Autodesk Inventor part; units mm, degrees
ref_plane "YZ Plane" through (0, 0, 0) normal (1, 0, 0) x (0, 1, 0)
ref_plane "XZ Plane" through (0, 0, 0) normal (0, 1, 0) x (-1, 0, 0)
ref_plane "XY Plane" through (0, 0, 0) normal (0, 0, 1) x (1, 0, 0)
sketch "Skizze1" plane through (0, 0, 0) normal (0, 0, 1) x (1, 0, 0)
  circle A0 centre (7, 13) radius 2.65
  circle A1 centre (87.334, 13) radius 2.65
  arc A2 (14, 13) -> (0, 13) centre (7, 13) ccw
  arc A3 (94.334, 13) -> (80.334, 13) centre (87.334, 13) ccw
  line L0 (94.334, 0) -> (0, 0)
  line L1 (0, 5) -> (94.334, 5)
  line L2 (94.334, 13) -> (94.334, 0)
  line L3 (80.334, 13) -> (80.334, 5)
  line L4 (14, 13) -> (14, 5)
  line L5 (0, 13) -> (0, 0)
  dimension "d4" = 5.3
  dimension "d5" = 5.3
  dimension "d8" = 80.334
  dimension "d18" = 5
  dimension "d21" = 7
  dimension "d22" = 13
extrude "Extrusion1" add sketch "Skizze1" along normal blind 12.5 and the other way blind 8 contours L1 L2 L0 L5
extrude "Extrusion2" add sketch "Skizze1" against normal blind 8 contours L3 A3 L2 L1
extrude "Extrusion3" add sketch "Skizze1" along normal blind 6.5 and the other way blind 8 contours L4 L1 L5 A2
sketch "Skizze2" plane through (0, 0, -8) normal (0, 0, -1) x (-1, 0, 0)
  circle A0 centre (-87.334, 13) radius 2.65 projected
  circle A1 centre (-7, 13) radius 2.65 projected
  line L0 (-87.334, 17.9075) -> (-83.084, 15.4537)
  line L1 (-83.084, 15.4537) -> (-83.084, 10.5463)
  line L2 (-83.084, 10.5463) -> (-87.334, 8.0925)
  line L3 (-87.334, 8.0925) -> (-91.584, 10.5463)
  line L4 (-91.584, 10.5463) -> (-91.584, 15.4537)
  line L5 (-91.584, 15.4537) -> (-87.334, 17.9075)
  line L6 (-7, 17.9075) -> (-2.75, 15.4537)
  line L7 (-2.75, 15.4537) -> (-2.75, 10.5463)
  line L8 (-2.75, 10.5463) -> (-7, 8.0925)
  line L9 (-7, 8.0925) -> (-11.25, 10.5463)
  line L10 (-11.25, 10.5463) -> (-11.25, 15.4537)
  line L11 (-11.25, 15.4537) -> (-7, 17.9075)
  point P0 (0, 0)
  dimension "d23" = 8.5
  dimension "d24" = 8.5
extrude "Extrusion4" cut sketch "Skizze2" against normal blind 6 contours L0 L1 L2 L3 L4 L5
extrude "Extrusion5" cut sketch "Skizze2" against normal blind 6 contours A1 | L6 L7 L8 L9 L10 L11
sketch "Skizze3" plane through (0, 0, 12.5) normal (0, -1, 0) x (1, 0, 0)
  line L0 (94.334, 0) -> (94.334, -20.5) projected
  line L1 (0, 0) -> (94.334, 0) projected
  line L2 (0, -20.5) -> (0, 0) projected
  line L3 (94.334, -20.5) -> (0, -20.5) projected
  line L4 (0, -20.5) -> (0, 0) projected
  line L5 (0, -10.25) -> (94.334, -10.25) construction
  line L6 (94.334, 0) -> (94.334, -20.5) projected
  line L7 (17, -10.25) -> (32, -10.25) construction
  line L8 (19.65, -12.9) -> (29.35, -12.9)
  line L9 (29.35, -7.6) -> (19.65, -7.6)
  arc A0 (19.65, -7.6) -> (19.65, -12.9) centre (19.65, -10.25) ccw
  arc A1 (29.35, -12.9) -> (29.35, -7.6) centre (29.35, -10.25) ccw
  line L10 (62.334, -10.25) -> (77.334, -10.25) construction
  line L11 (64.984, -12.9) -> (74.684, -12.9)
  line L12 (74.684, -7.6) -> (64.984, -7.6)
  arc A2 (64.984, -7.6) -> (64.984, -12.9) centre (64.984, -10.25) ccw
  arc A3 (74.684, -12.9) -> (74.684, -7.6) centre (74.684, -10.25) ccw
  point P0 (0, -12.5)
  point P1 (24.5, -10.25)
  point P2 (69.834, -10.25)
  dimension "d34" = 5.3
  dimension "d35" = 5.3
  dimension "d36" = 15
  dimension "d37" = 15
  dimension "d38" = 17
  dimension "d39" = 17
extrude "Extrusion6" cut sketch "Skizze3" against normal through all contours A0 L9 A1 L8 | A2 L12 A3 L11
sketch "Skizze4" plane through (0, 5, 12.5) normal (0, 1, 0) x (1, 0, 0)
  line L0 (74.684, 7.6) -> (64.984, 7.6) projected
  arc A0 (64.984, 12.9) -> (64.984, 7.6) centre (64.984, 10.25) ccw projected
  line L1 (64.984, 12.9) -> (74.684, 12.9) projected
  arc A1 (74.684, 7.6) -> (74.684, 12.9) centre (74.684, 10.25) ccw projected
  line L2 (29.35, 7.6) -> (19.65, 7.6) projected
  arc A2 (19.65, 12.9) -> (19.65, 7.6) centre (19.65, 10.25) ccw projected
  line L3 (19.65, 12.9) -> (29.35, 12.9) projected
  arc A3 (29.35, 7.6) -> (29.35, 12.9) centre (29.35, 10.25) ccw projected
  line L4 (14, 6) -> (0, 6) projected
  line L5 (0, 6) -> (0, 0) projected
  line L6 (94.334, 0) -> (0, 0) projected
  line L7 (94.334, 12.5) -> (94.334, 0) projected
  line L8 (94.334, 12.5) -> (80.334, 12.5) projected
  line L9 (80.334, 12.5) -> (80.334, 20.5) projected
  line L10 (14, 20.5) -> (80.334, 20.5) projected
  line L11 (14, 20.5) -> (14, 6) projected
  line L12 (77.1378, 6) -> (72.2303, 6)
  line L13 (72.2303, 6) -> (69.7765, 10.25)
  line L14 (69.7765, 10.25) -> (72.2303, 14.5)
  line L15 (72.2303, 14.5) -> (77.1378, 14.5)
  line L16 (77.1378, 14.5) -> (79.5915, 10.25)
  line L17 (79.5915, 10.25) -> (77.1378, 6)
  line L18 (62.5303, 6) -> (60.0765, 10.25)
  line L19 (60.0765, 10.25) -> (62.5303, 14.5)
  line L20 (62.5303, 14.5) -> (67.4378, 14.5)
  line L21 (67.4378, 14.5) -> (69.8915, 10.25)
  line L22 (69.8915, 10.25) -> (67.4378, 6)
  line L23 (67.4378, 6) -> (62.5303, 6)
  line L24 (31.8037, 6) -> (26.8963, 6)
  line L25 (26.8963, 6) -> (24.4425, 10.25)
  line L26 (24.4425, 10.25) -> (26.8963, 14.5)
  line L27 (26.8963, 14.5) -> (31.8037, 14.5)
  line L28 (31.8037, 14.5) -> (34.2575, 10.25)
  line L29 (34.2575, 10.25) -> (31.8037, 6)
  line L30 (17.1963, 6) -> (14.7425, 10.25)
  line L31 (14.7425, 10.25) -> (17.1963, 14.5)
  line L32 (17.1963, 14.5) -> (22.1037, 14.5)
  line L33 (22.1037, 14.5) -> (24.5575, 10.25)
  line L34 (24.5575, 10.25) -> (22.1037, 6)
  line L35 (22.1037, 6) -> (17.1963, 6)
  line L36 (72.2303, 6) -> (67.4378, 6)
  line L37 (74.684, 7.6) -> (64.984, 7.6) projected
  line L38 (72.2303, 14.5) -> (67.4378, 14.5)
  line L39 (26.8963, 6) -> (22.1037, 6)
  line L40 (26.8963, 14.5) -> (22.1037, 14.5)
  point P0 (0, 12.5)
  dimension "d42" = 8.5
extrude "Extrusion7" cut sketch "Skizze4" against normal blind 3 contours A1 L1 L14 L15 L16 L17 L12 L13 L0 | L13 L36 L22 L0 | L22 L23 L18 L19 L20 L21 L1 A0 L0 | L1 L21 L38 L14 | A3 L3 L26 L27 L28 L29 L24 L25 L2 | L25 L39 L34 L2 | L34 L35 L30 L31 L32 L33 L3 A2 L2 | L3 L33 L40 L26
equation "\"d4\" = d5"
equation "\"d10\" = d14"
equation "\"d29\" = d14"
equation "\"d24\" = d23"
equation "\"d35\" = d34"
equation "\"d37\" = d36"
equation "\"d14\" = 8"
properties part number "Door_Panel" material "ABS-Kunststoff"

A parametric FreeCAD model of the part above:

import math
import FreeCAD as App
import Part
import Sketcher
Q = App.Units.Quantity


def add_polygon(sketch, points):
    """Adds a closed chain of lines whose ends are joined by coincident constraints."""
    first, n = sketch.GeometryCount, len(points)
    for a, b in zip(points, points[1:] + points[:1]):
        sketch.addGeometry(Part.LineSegment(App.Vector(*a, 0), App.Vector(*b, 0)), False)
    for i in range(n):
        sketch.addConstraint(Sketcher.Constraint("Coincident", first + i, 2, first + (i + 1) % n, 1))

doc = App.newDocument("Part")
params = doc.addObject("Spreadsheet::Sheet", "Params")
for row, (alias, value) in enumerate([
    ("sketch1_height", "5 mm"),
    ("pad1_length", "12.5 mm"),
    ("pad1_length2", "8 mm"),
    ("sketch2_radius", "7 mm"),
    ("sketch2_diameter", "5.3 mm"),
    ("pad2_length", "8 mm"),
    ("sketch3_radius", "7 mm"),
    ("sketch3_diameter", "5.3 mm"),
    ("pad3_length", "6.5 mm"),
    ("pad3_length2", "8 mm"),
    ("sketch4_diameter", "5.3 mm"),
    ("pocket1_length", "6 mm"),
    ("pocket2_length", "6 mm"),
    ("sketch6_radius", "2.65 mm"),
    ("sketch6_width", "9.7 mm"),
    ("sketch7_radius", "2.65 mm"),
    ("sketch7_width", "9.7 mm"),
    ("pocket4_length", "3 mm"),
], start=1):
    params.set(f"A{row}", alias)
    params.set(f"B{row}", "=" + value)
    params.setAlias(f"B{row}", alias)

body = doc.addObject("PartDesign::Body", "Body")

# Sketch on XY plane
sketch1 = body.newObject("Sketcher::SketchObject", "Sketch")
sketch1.AttachmentSupport = (doc.getObject("XY_Plane"), [""])
sketch1.MapMode = "FlatFace"
add_polygon(sketch1, [(94.334, 5), (0, 5), (0, 0), (94.334, 0)])  # lines 0-3
sketch1.addConstraint([
    Sketcher.Constraint("Horizontal", 0),
    Sketcher.Constraint("Vertical", 1),
    Sketcher.Constraint("Horizontal", 2),
    Sketcher.Constraint("Vertical", 3),
    Sketcher.Constraint("Coincident", 1, 2, -1, 1),
    Sketcher.Constraint("DistanceY", 1, 2, 1, 1, Q("5 mm")),
    Sketcher.Constraint("DistanceX", 0, 2, 0, 1, Q("94.334 mm")),
])
sketch1.setExpression("Constraints[9]", "Params.sketch1_height")
pad1 = body.newObject("PartDesign::Pad", "Pad")
pad1.Profile = sketch1
pad1.Type = "TwoLengths"
pad1.setExpression("Length", "Params.pad1_length")
pad1.setExpression("Length2", "Params.pad1_length2")

# Sketch on XY plane
sketch2 = body.newObject("Sketcher::SketchObject", "Sketch001")
sketch2.AttachmentSupport = (doc.getObject("XY_Plane"), [""])
sketch2.MapMode = "FlatFace"
sketch2.addGeometry([
    Part.LineSegment(App.Vector(80.334, 13, 0), App.Vector(80.334, 5, 0)),  # 0
    Part.LineSegment(App.Vector(80.334, 5, 0), App.Vector(94.334, 5, 0)),  # 1
    Part.LineSegment(App.Vector(94.334, 5, 0), App.Vector(94.334, 13, 0)),  # 2
    Part.ArcOfCircle(Part.Circle(App.Vector(87.334, 13, 0), App.Vector(0, 0, 1), 7), math.radians(0), math.radians(180)),  # 3
    Part.Circle(App.Vector(87.334, 13, 0), App.Vector(0, 0, 1), 2.65),  # 4
], False)
sketch2.addConstraint([
    Sketcher.Constraint("Coincident", 0, 2, 1, 1),
    Sketcher.Constraint("Coincident", 1, 2, 2, 1),
    Sketcher.Constraint("Tangent", 2, 2, 3, 1),
    Sketcher.Constraint("Tangent", 3, 2, 0, 1),
    Sketcher.Constraint("Vertical", 0),
    Sketcher.Constraint("Horizontal", 1),
    Sketcher.Constraint("Vertical", 2),
    Sketcher.Constraint("Coincident", 4, 3, 3, 3),
    Sketcher.Constraint("Radius", 3, Q("7 mm")),
    Sketcher.Constraint("Diameter", 4, Q("5.3 mm")),
    Sketcher.Constraint("DistanceY", -1, 1, 3, 3, Q("13 mm")),
    Sketcher.Constraint("DistanceY", -1, 1, 0, 2, Q("5 mm")),
    Sketcher.Constraint("DistanceX", -1, 1, 0, 2, Q("80.334 mm")),
])
sketch2.setExpression("Constraints[8]", "Params.sketch2_radius")
sketch2.setExpression("Constraints[9]", "Params.sketch2_diameter")
pad2 = body.newObject("PartDesign::Pad", "Pad001")
pad2.Profile = sketch2
pad2.setExpression("Length", "Params.pad2_length")
pad2.Reversed = True

# Sketch on XY plane
sketch3 = body.newObject("Sketcher::SketchObject", "Sketch002")
sketch3.AttachmentSupport = (doc.getObject("XY_Plane"), [""])
sketch3.MapMode = "FlatFace"
sketch3.addGeometry([
    Part.LineSegment(App.Vector(14, 5, 0), App.Vector(14, 13, 0)),  # 0
    Part.ArcOfCircle(Part.Circle(App.Vector(7, 13, 0), App.Vector(0, 0, 1), 7), math.radians(0), math.radians(180)),  # 1
    Part.LineSegment(App.Vector(0, 13, 0), App.Vector(0, 5, 0)),  # 2
    Part.LineSegment(App.Vector(0, 5, 0), App.Vector(14, 5, 0)),  # 3
    Part.Circle(App.Vector(7, 13, 0), App.Vector(0, 0, 1), 2.65),  # 4
], False)
sketch3.addConstraint([
    Sketcher.Constraint("Tangent", 0, 2, 1, 1),
    Sketcher.Constraint("Tangent", 1, 2, 2, 1),
    Sketcher.Constraint("Coincident", 2, 2, 3, 1),
    Sketcher.Constraint("Coincident", 3, 2, 0, 1),
    Sketcher.Constraint("Vertical", 0),
    Sketcher.Constraint("Vertical", 2),
    Sketcher.Constraint("Horizontal", 3),
    Sketcher.Constraint("Coincident", 4, 3, 1, 3),
    Sketcher.Constraint("PointOnObject", 1, 2, -2),
    Sketcher.Constraint("Radius", 1, Q("7 mm")),
    Sketcher.Constraint("Diameter", 4, Q("5.3 mm")),
    Sketcher.Constraint("DistanceY", -1, 1, 1, 3, Q("13 mm")),
    Sketcher.Constraint("DistanceY", -1, 1, 2, 2, Q("5 mm")),
])
sketch3.setExpression("Constraints[9]", "Params.sketch3_radius")
sketch3.setExpression("Constraints[10]", "Params.sketch3_diameter")
pad3 = body.newObject("PartDesign::Pad", "Pad002")
pad3.Profile = sketch3
pad3.Type = "TwoLengths"
pad3.setExpression("Length", "Params.pad3_length")
pad3.setExpression("Length2", "Params.pad3_length2")

# Sketch on XY plane
sketch4 = body.newObject("Sketcher::SketchObject", "Sketch003")
sketch4.AttachmentSupport = (doc.getObject("XY_Plane"), [""])
sketch4.MapMode = "FlatFace"
sketch4.AttachmentOffset = App.Placement(App.Vector(0, 0, -8), App.Rotation())
add_polygon(sketch4, [(83.084, 15.4537), (87.334, 17.9075), (91.584, 15.4537), (91.584, 10.5463), (87.334, 8.0925), (83.084, 10.5463)])  # lines 0-5
sketch4.addGeometry(Part.Circle(App.Vector(87.334, 13, 0), App.Vector(0, 0, 1), 2.65), False)  # 6
sketch4.addConstraint([
    Sketcher.Constraint("Vertical", 2),
    Sketcher.Constraint("Vertical", 5),
    Sketcher.Constraint("Parallel", 0, 3),
    Sketcher.Constraint("Parallel", 1, 4),
    Sketcher.Constraint("Horizontal", 2, 2, 4, 2),
    Sketcher.Constraint("Horizontal", 1, 2, 5, 2),
    Sketcher.Constraint("Vertical", 6, 3, 0, 2),
    Sketcher.Constraint("Vertical", 0, 2, 3, 2),
    Sketcher.Constraint("Diameter", 6, Q("5.3 mm")),
    Sketcher.Constraint("DistanceX", 4, 2, 2, 2, Q("8.5 mm")),
    Sketcher.Constraint("Angle", 0, Q("30.0006 deg")),
    Sketcher.Constraint("DistanceY", -1, 1, 6, 3, Q("13 mm")),
    Sketcher.Constraint("DistanceY", 2, 2, 2, 1, Q("4.9074 mm")),
    Sketcher.Constraint("DistanceX", -1, 1, 6, 3, Q("87.334 mm")),
    Sketcher.Constraint("DistanceY", -1, 1, 0, 2, Q("17.9075 mm")),
])
sketch4.setExpression("Constraints[14]", "Params.sketch4_diameter")
pocket1 = body.newObject("PartDesign::Pocket", "Pocket")
pocket1.Profile = sketch4
pocket1.setExpression("Length", "Params.pocket1_length")
pocket1.Reversed = True

# Sketch on XY plane
sketch5 = body.newObject("Sketcher::SketchObject", "Sketch004")
sketch5.AttachmentSupport = (doc.getObject("XY_Plane"), [""])
sketch5.MapMode = "FlatFace"
sketch5.AttachmentOffset = App.Placement(App.Vector(0, 0, -8), App.Rotation())
add_polygon(sketch5, [(2.75, 15.4537), (7, 17.9075), (11.25, 15.4537), (11.25, 10.5463), (7, 8.0925), (2.75, 10.5463)])  # lines 0-5
sketch5.addConstraint([
    Sketcher.Constraint("Vertical", 2),
    Sketcher.Constraint("Vertical", 5),
    Sketcher.Constraint("Parallel", 0, 3),
    Sketcher.Constraint("Parallel", 1, 4),
    Sketcher.Constraint("Horizontal", 2, 2, 4, 2),
    Sketcher.Constraint("Horizontal", 1, 2, 5, 2),
    Sketcher.Constraint("Vertical", 0, 2, 3, 2),
    Sketcher.Constraint("DistanceX", 4, 2, 2, 2, Q("8.5 mm")),
    Sketcher.Constraint("Angle", 0, Q("30.0006 deg")),
    Sketcher.Constraint("DistanceX", -1, 1, 0, 2, Q("7 mm")),
    Sketcher.Constraint("DistanceY", 2, 2, 2, 1, Q("4.9074 mm")),
    Sketcher.Constraint("DistanceY", -1, 1, 0, 2, Q("17.9075 mm")),
])
pocket2 = body.newObject("PartDesign::Pocket", "Pocket001")
pocket2.Profile = sketch5
pocket2.setExpression("Length", "Params.pocket2_length")
pocket2.Reversed = True

# Sketch on XZ plane
sketch6 = body.newObject("Sketcher::SketchObject", "Sketch005")
sketch6.AttachmentSupport = (doc.getObject("XZ_Plane"), [""])
sketch6.MapMode = "FlatFace"
sketch6.addGeometry([
    Part.ArcOfCircle(Part.Circle(App.Vector(19.65, 2.25, 0), App.Vector(0, 0, 1), 2.65), math.radians(90), math.radians(270)),  # 0
    Part.LineSegment(App.Vector(19.65, -0.4, 0), App.Vector(29.35, -0.4, 0)),  # 1
    Part.ArcOfCircle(Part.Circle(App.Vector(29.35, 2.25, 0), App.Vector(0, 0, 1), 2.65), math.radians(-90), math.radians(90)),  # 2
    Part.LineSegment(App.Vector(29.35, 4.9, 0), App.Vector(19.65, 4.9, 0)),  # 3
    Part.ArcOfCircle(Part.Circle(App.Vector(64.984, 2.25, 0), App.Vector(0, 0, 1), 2.65), math.radians(90), math.radians(270)),  # 4
    Part.LineSegment(App.Vector(64.984, -0.4, 0), App.Vector(74.684, -0.4, 0)),  # 5
    Part.ArcOfCircle(Part.Circle(App.Vector(74.684, 2.25, 0), App.Vector(0, 0, 1), 2.65), math.radians(-90), math.radians(90)),  # 6
    Part.LineSegment(App.Vector(74.684, 4.9, 0), App.Vector(64.984, 4.9, 0)),  # 7
], False)
sketch6.addConstraint([
    Sketcher.Constraint("Tangent", 0, 2, 1, 1),
    Sketcher.Constraint("Tangent", 1, 2, 2, 1),
    Sketcher.Constraint("Tangent", 2, 2, 3, 1),
    Sketcher.Constraint("Tangent", 3, 2, 0, 1),
    Sketcher.Constraint("Tangent", 4, 2, 5, 1),
    Sketcher.Constraint("Tangent", 5, 2, 6, 1),
    Sketcher.Constraint("Tangent", 6, 2, 7, 1),
    Sketcher.Constraint("Tangent", 7, 2, 4, 1),
    Sketcher.Constraint("Horizontal", 1),
    Sketcher.Constraint("Horizontal", 3),
    Sketcher.Constraint("Horizontal", 5),
    Sketcher.Constraint("Horizontal", 7),
    Sketcher.Constraint("Equal", 2, 4),
    Sketcher.Constraint("Horizontal", 2, 3, 4, 3),
    Sketcher.Constraint("Equal", 3, 5),
    Sketcher.Constraint("Radius", 0, Q("2.65 mm")),
    Sketcher.Constraint("DistanceX", 1, 1, 1, 2, Q("9.7 mm")),
    Sketcher.Constraint("DistanceY", 0, 2, -1, 1, Q("0.4 mm")),
    Sketcher.Constraint("DistanceX", -1, 1, 0, 3, Q("19.65 mm")),
    Sketcher.Constraint("DistanceX", -1, 1, 4, 3, Q("64.984 mm")),
])
sketch6.setExpression("Constraints[15]", "Params.sketch6_radius")
sketch6.setExpression("Constraints[16]", "Params.sketch6_width")
pocket3 = body.newObject("PartDesign::Pocket", "Pocket002")
pocket3.Profile = sketch6
pocket3.Type = "ThroughAll"

# Sketch on XZ plane
sketch7 = body.newObject("Sketcher::SketchObject", "Sketch006")
sketch7.AttachmentSupport = (doc.getObject("XZ_Plane"), [""])
sketch7.MapMode = "FlatFace"
sketch7.AttachmentOffset = App.Placement(App.Vector(0, 0, -5), App.Rotation())
add_polygon(sketch7, [(77.1378, -2), (62.5303, -2), (60.0765, 2.25), (62.5303, 6.5), (77.1378, 6.5), (79.5915, 2.25)])  # lines 0-5
sketch7.addGeometry(Part.ArcOfCircle(Part.Circle(App.Vector(74.684, 2.25, 0), App.Vector(0, 0, 1), 2.65), math.radians(-90), math.radians(90)), False)  # 6
sketch7.addGeometry(Part.LineSegment(App.Vector(74.684, 4.9, 0), App.Vector(64.984, 4.9, 0)), False)  # 7
sketch7.addGeometry(Part.ArcOfCircle(Part.Circle(App.Vector(64.984, 2.25, 0), App.Vector(0, 0, 1), 2.65), math.radians(90), math.radians(270)), False)  # 8
sketch7.addGeometry(Part.LineSegment(App.Vector(64.984, -0.4, 0), App.Vector(74.684, -0.4, 0)), False)  # 9
add_polygon(sketch7, [(31.8037, -2), (17.1963, -2), (14.7425, 2.25), (17.1963, 6.5), (31.8037, 6.5), (34.2575, 2.25)])  # lines 10-15
sketch7.addGeometry(Part.ArcOfCircle(Part.Circle(App.Vector(29.35, 2.25, 0), App.Vector(0, 0, 1), 2.65), math.radians(-90), math.radians(90)), False)  # 16
sketch7.addGeometry(Part.LineSegment(App.Vector(29.35, 4.9, 0), App.Vector(19.65, 4.9, 0)), False)  # 17
sketch7.addGeometry(Part.ArcOfCircle(Part.Circle(App.Vector(19.65, 2.25, 0), App.Vector(0, 0, 1), 2.65), math.radians(90), math.radians(270)), False)  # 18
sketch7.addGeometry(Part.LineSegment(App.Vector(19.65, -0.4, 0), App.Vector(29.35, -0.4, 0)), False)  # 19
sketch7.addConstraint([
    Sketcher.Constraint("Tangent", 6, 2, 7, 1),
    Sketcher.Constraint("Tangent", 7, 2, 8, 1),
    Sketcher.Constraint("Tangent", 8, 2, 9, 1),
    Sketcher.Constraint("Tangent", 9, 2, 6, 1),
    Sketcher.Constraint("Tangent", 16, 2, 17, 1),
    Sketcher.Constraint("Tangent", 17, 2, 18, 1),
    Sketcher.Constraint("Tangent", 18, 2, 19, 1),
    Sketcher.Constraint("Tangent", 19, 2, 16, 1),
    Sketcher.Constraint("Horizontal", 0),
    Sketcher.Constraint("Horizontal", 3),
    Sketcher.Constraint("Horizontal", 7),
    Sketcher.Constraint("Horizontal", 9),
    Sketcher.Constraint("Horizontal", 10),
    Sketcher.Constraint("Horizontal", 13),
    Sketcher.Constraint("Horizontal", 17),
    Sketcher.Constraint("Horizontal", 19),
    Sketcher.Constraint("Equal", 8, 16),
    Sketcher.Constraint("Parallel", 1, 4),
    Sketcher.Constraint("Parallel", 2, 5),
    Sketcher.Constraint("Parallel", 4, 11),
    Sketcher.Constraint("Parallel", 5, 12),
    Sketcher.Constraint("Parallel", 11, 14),
    Sketcher.Constraint("Parallel", 12, 15),
    Sketcher.Constraint("Horizontal", 8, 3, 16, 3),
    Sketcher.Constraint("Horizontal", 18, 3, 1, 2),
    Sketcher.Constraint("Horizontal", 1, 2, 4, 2),
    Sketcher.Constraint("Horizontal", 5, 2, 10, 2),
    Sketcher.Constraint("Horizontal", 4, 2, 11, 2),
    Sketcher.Constraint("Horizontal", 3, 2, 12, 2),
    Sketcher.Constraint("Horizontal", 11, 2, 14, 2),
    Sketcher.Constraint("Vertical", 0, 2, 2, 2),
    Sketcher.Constraint("Vertical", 3, 2, 5, 2),
    Sketcher.Constraint("Equal", 3, 10),
    Sketcher.Constraint("Equal", 9, 17),
    Sketcher.Constraint("DistanceY", 0, 2, 2, 2, Q("8.5 mm")),
    Sketcher.Constraint("Angle", 1, Q("120.0006 deg")),
    Sketcher.Constraint("Radius", 6, Q("2.65 mm")),
    Sketcher.Constraint("DistanceX", 7, 2, 7, 1, Q("9.7 mm")),
    Sketcher.Constraint("DistanceY", 0, 2, -1, 1, Q("2 mm")),
    Sketcher.Constraint("DistanceX", -1, 1, 16, 3, Q("29.35 mm")),
    Sketcher.Constraint("DistanceX", 0, 2, 0, 1, Q("14.6075 mm")),
    Sketcher.Constraint("DistanceX", -1, 1, 6, 3, Q("74.684 mm")),
    Sketcher.Constraint("DistanceX", 10, 2, 0, 2, Q("45.334 mm")),
    Sketcher.Constraint("DistanceX", -1, 1, 0, 2, Q("62.5303 mm")),
])
sketch7.setExpression("Constraints[48]", "Params.sketch7_radius")
sketch7.setExpression("Constraints[49]", "Params.sketch7_width")
pocket4 = body.newObject("PartDesign::Pocket", "Pocket003")
pocket4.Profile = sketch7
pocket4.setExpression("Length", "Params.pocket4_length")
pocket4.Reversed = True

doc.recompute()
